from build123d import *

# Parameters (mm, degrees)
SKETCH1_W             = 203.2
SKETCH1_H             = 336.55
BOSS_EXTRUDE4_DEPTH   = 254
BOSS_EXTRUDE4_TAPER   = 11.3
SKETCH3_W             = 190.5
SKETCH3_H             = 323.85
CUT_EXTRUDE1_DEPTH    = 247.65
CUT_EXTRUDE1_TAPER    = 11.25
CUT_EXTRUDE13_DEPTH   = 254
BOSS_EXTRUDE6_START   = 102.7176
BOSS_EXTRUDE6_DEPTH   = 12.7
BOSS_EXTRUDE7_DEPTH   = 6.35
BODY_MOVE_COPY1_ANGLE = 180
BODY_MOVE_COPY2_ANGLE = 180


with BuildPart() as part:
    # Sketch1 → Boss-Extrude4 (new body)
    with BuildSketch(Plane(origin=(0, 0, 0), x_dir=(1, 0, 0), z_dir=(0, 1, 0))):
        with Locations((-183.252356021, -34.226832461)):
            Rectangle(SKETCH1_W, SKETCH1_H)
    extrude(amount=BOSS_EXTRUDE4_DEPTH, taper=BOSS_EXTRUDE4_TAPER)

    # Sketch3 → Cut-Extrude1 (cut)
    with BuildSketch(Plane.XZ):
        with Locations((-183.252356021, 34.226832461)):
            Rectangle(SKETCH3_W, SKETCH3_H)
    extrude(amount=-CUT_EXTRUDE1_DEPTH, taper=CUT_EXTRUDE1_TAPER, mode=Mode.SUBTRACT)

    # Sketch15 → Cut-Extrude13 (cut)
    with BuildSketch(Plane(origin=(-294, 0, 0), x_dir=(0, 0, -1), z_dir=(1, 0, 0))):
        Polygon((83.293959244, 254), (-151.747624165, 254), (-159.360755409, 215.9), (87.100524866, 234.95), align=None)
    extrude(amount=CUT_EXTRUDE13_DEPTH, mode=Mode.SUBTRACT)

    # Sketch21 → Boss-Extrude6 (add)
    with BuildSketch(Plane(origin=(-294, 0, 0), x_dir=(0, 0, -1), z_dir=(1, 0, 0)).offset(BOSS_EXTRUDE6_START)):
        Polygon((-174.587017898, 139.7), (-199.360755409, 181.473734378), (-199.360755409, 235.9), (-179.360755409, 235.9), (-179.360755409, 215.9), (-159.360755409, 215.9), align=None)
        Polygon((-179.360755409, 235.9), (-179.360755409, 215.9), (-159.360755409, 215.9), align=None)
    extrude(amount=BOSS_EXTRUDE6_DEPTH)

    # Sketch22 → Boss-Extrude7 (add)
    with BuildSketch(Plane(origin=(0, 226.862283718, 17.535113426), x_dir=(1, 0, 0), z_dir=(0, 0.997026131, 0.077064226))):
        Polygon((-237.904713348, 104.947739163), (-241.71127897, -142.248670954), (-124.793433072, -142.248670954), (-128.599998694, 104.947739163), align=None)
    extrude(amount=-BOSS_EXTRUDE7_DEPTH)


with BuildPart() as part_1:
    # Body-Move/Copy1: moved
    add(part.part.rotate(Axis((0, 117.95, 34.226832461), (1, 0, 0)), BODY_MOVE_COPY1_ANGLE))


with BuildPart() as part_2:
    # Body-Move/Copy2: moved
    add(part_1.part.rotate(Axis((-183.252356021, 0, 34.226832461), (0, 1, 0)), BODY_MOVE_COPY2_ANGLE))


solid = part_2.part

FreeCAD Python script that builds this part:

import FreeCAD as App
import Part
import Sketcher
from FreeCAD import Vector
Q = App.Units.Quantity

doc = App.newDocument("Part")
body = doc.addObject("PartDesign::Body", "Body")

# Sketch on XZ plane
sketch1 = body.newObject("Sketcher::SketchObject", "Sketch")
sketch1.AttachmentSupport = (doc.getObject("XZ_Plane"), [""])
sketch1.MapMode = "FlatFace"
sketch1.addGeometry(Part.LineSegment(Vector(-285, -134, 0), Vector(-285, 203, 0)), False)
sketch1.addGeometry(Part.LineSegment(Vector(-285, 203, 0), Vector(-82, 203, 0)), False)
sketch1.addGeometry(Part.LineSegment(Vector(-82, 203, 0), Vector(-82, -134, 0)), False)
sketch1.addGeometry(Part.LineSegment(Vector(-82, -134, 0), Vector(-285, -134, 0)), False)
sketch1.addConstraint(Sketcher.Constraint("Coincident", 0, 2, 1, 1))
sketch1.addConstraint(Sketcher.Constraint("Coincident", 1, 2, 2, 1))
sketch1.addConstraint(Sketcher.Constraint("Coincident", 2, 2, 3, 1))
sketch1.addConstraint(Sketcher.Constraint("Coincident", 3, 2, 0, 1))
sketch1.addConstraint(Sketcher.Constraint("Vertical", 0))
sketch1.addConstraint(Sketcher.Constraint("Horizontal", 1))
sketch1.addConstraint(Sketcher.Constraint("Vertical", 2))
sketch1.addConstraint(Sketcher.Constraint("Horizontal", 3))
sketch1.addConstraint(Sketcher.Constraint("DistanceX", 1, 1, 1, 2, Q("8 in")))
sketch1.addConstraint(Sketcher.Constraint("DistanceY", 0, 1, 0, 2, Q("13.25 in")))
sketch1.addConstraint(Sketcher.Constraint("DistanceX", 0, 2, -1, 1, Q("284.852356 mm")))
sketch1.addConstraint(Sketcher.Constraint("DistanceY", -1, 1, 0, 2, Q("202.501832 mm")))
pad1 = body.newObject("PartDesign::Pad", "Pad")
pad1.Profile = sketch1
pad1.Length = Q("10 in")
pad1.Reversed = True
pad1.TaperAngle = -11.3

# Sketch on XZ plane
sketch2 = body.newObject("Sketcher::SketchObject", "Sketch001")
sketch2.AttachmentSupport = (doc.getObject("XZ_Plane"), [""])
sketch2.MapMode = "FlatFace"
sketch2.addGeometry(Part.LineSegment(Vector(-279, 196, 0), Vector(-279, -128, 0)), False)
sketch2.addGeometry(Part.LineSegment(Vector(-279, -128, 0), Vector(-88, -128, 0)), False)
sketch2.addGeometry(Part.LineSegment(Vector(-88, -128, 0), Vector(-88, 196, 0)), False)
sketch2.addGeometry(Part.LineSegment(Vector(-88, 196, 0), Vector(-279, 196, 0)), False)
sketch2.addConstraint(Sketcher.Constraint("Coincident", 0, 2, 1, 1))
sketch2.addConstraint(Sketcher.Constraint("Coincident", 1, 2, 2, 1))
sketch2.addConstraint(Sketcher.Constraint("Coincident", 2, 2, 3, 1))
sketch2.addConstraint(Sketcher.Constraint("Coincident", 3, 2, 0, 1))
sketch2.addConstraint(Sketcher.Constraint("Vertical", 0))
sketch2.addConstraint(Sketcher.Constraint("Horizontal", 1))
sketch2.addConstraint(Sketcher.Constraint("Vertical", 2))
sketch2.addConstraint(Sketcher.Constraint("Horizontal", 3))
sketch2.addConstraint(Sketcher.Constraint("DistanceX", 1, 1, 1, 2, Q("7.5 in")))
sketch2.addConstraint(Sketcher.Constraint("DistanceY", 0, 2, 0, 1, Q("12.75 in")))
sketch2.addConstraint(Sketcher.Constraint("DistanceX", 0, 2, -1, 1, Q("278.502356 mm")))
sketch2.addConstraint(Sketcher.Constraint("DistanceY", 0, 2, -1, 1, Q("127.698168 mm")))
pocket1 = body.newObject("PartDesign::Pocket", "Pocket")
pocket1.Profile = sketch2
pocket1.Length = Q("9.75 in")
pocket1.TaperAngle = -11.25

# Sketch on YZ plane
sketch3 = body.newObject("Sketcher::SketchObject", "Sketch002")
sketch3.AttachmentSupport = (doc.getObject("YZ_Plane"), [""])
sketch3.MapMode = "FlatFace"
sketch3.AttachmentOffset = App.Placement(Vector(0, 0, -294), App.Rotation())
sketch3.addGeometry(Part.LineSegment(Vector(254, -83, 0), Vector(254, 152, 0)), False)
sketch3.addGeometry(Part.LineSegment(Vector(254, 152, 0), Vector(216, 159, 0)), False)
sketch3.addGeometry(Part.LineSegment(Vector(216, 159, 0), Vector(235, -87, 0)), False)
sketch3.addGeometry(Part.LineSegment(Vector(235, -87, 0), Vector(254, -83, 0)), False)
sketch3.addConstraint(Sketcher.Constraint("Coincident", 0, 2, 1, 1))
sketch3.addConstraint(Sketcher.Constraint("Coincident", 1, 2, 2, 1))
sketch3.addConstraint(Sketcher.Constraint("Coincident", 2, 2, 3, 1))
sketch3.addConstraint(Sketcher.Constraint("Coincident", 3, 2, 0, 1))
sketch3.addConstraint(Sketcher.Constraint("Vertical", 0))
sketch3.addConstraint(Sketcher.Constraint("DistanceX", -1, 1, 0, 2, Q("10 in")))
sketch3.addConstraint(Sketcher.Constraint("DistanceX", -1, 1, 1, 2, Q("8.5 in")))
sketch3.addConstraint(Sketcher.Constraint("Angle", 1, Q("168.7 deg")))
sketch3.addConstraint(Sketcher.Constraint("Angle", 3, Q("11.3 deg")))
sketch3.addConstraint(Sketcher.Constraint("DistanceX", -1, 1, 2, 2, Q("9.25 in")))
sketch3.addConstraint(Sketcher.Constraint("DistanceY", 2, 2, 1, 2, Q("9.7032 in")))
sketch3.addConstraint(Sketcher.Constraint("DistanceY", 3, 2, -1, 1, Q("83.293959 mm")))
pocket2 = body.newObject("PartDesign::Pocket", "Pocket001")
pocket2.Profile = sketch3
pocket2.Length = Q("10 in")
pocket2.Reversed = True

# Sketch on YZ plane
sketch4 = body.newObject("Sketcher::SketchObject", "Sketch003")
sketch4.AttachmentSupport = (doc.getObject("YZ_Plane"), [""])
sketch4.MapMode = "FlatFace"
sketch4.AttachmentOffset = App.Placement(Vector(0, 0, -191.2824), App.Rotation())
sketch4.addGeometry(Part.LineSegment(Vector(181, 199, 0), Vector(140, 175, 0)), False)
sketch4.addGeometry(Part.LineSegment(Vector(140, 175, 0), Vector(216, 159, 0)), False)
sketch4.addGeometry(Part.LineSegment(Vector(216, 159, 0), Vector(236, 179, 0)), False)
sketch4.addGeometry(Part.LineSegment(Vector(236, 179, 0), Vector(236, 199, 0)), False)
sketch4.addGeometry(Part.LineSegment(Vector(236, 199, 0), Vector(181, 199, 0)), False)
sketch4.addConstraint(Sketcher.Constraint("Coincident", 0, 2, 1, 1))
sketch4.addConstraint(Sketcher.Constraint("Coincident", 1, 2, 2, 1))
sketch4.addConstraint(Sketcher.Constraint("Coincident", 2, 2, 3, 1))
sketch4.addConstraint(Sketcher.Constraint("Coincident", 3, 2, 4, 1))
sketch4.addConstraint(Sketcher.Constraint("Coincident", 4, 2, 0, 1))
sketch4.addConstraint(Sketcher.Constraint("Vertical", 3))
sketch4.addConstraint(Sketcher.Constraint("Horizontal", 4))
sketch4.addConstraint(Sketcher.Constraint("Angle", 2, Q("45 deg")))
sketch4.addConstraint(Sketcher.Constraint("DistanceX", 0, 2, 1, 2, Q("3 in")))
sketch4.addConstraint(Sketcher.Constraint("DistanceX", -1, 1, 0, 2, Q("5.5 in")))
sketch4.addConstraint(Sketcher.Constraint("Angle", 1, Q("-11.3 deg")))
sketch4.addConstraint(Sketcher.Constraint("DistanceY", 3, 1, 3, 2, Q("20 mm")))
sketch4.addConstraint(Sketcher.Constraint("DistanceX", -1, 1, 2, 2, Q("235.9 mm")))
sketch4.addConstraint(Sketcher.Constraint("DistanceX", 4, 2, 4, 1, Q("54.426266 mm")))
sketch4.addConstraint(Sketcher.Constraint("DistanceY", -1, 1, 0, 2, Q("174.587018 mm")))
pad2 = body.newObject("PartDesign::Pad", "Pad001")
pad2.Profile = sketch4
pad2.Length = Q("0.5 in")

# Sketch on an angled plane
sketch5 = body.newObject("Sketcher::SketchObject", "Sketch004")
sketch5.Placement = App.Placement(Vector(0, 226.862284, 17.535113), App.Rotation(Vector(1, 0, 0), Vector(0, 0.077064226, -0.997026131), Vector(0, 0.997026131, 0.077064226), "ZXY"))
sketch5.addGeometry(Part.LineSegment(Vector(-238, 105, 0), Vector(-242, -142, 0)), False)
sketch5.addGeometry(Part.LineSegment(Vector(-242, -142, 0), Vector(-125, -142, 0)), False)
sketch5.addGeometry(Part.LineSegment(Vector(-125, -142, 0), Vector(-129, 105, 0)), False)
sketch5.addGeometry(Part.LineSegment(Vector(-129, 105, 0), Vector(-238, 105, 0)), False)
sketch5.addConstraint(Sketcher.Constraint("Coincident", 0, 2, 1, 1))
sketch5.addConstraint(Sketcher.Constraint("Coincident", 1, 2, 2, 1))
sketch5.addConstraint(Sketcher.Constraint("Coincident", 2, 2, 3, 1))
sketch5.addConstraint(Sketcher.Constraint("Coincident", 3, 2, 0, 1))
sketch5.addConstraint(Sketcher.Constraint("Horizontal", 1))
sketch5.addConstraint(Sketcher.Constraint("Horizontal", 3))
sketch5.addConstraint(Sketcher.Constraint("Equal", 0, 2))
sketch5.addConstraint(Sketcher.Constraint("DistanceX", 0, 2, 2, 2, Q("4.4532 in")))
sketch5.addConstraint(Sketcher.Constraint("DistanceX", 2, 2, -1, 1, Q("128.599999 mm")))
sketch5.addConstraint(Sketcher.Constraint("DistanceX", 1, 1, 1, 2, Q("116.917846 mm")))
sketch5.addConstraint(Sketcher.Constraint("DistanceY", 0, 2, -1, 1, Q("142.248671 mm")))
sketch5.addConstraint(Sketcher.Constraint("DistanceY", -1, 1, 2, 2, Q("104.947739 mm")))
pad3 = body.newObject("PartDesign::Pad", "Pad002")
pad3.Profile = sketch5
pad3.Length = Q("0.25 in")
pad3.Reversed = True
body2 = doc.addObject("PartDesign::Body", "Body001")
doc.recompute()

body.Placement = App.Placement(Vector(0, 235.9, 68.453665), App.Rotation(Vector(1, 0, 0), 180))
boolean = body2.newObject("PartDesign::Boolean", "Boolean")
boolean.Type = "Fuse"
boolean.addObjects([body])
body3 = doc.addObject("PartDesign::Body", "Body002")
doc.recompute()

body2.Placement = App.Placement(Vector(-366.504712, 0, 68.453665), App.Rotation(Vector(0, 1, 0), 180))
boolean2 = body3.newObject("PartDesign::Boolean", "Boolean001")
boolean2.Type = "Fuse"
boolean2.addObjects([body2])

doc.recompute()
